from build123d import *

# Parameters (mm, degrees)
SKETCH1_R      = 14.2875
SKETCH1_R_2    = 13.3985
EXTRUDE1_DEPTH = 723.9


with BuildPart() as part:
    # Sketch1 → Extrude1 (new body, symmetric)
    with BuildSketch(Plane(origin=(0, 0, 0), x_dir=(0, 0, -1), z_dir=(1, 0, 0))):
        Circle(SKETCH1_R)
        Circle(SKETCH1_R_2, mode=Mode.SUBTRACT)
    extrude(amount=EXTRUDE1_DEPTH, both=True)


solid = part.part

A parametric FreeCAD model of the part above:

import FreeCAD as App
import Part
import Sketcher

V = App.Vector
Q = App.Units.Quantity

doc = App.newDocument("Part")
body = doc.addObject("PartDesign::Body", "Body")

# Sketch on YZ plane
sketch1 = body.newObject("Sketcher::SketchObject", "Sketch")
sketch1.AttachmentSupport = (doc.getObject("YZ_Plane"), [""])
sketch1.MapMode = "FlatFace"
sketch1.addGeometry([
    Part.Circle(V(0, 0, 0), V(0, 0, 1), 14),
    Part.Circle(V(0, 0, 0), V(0, 0, 1), 13),
], False)
sketch1.addConstraint([
    Sketcher.Constraint("Coincident", 0, 3, -1, 1),
    Sketcher.Constraint("Coincident", 1, 3, -1, 1),
    Sketcher.Constraint("Diameter", 0, Q("1.125 in")),
    Sketcher.Constraint("Diameter", 1, Q("1.055 in")),
])
pad1 = body.newObject("PartDesign::Pad", "Pad")
pad1.Profile = sketch1
pad1.Length = Q("57 in")
pad1.Midplane = True

doc.recompute()
